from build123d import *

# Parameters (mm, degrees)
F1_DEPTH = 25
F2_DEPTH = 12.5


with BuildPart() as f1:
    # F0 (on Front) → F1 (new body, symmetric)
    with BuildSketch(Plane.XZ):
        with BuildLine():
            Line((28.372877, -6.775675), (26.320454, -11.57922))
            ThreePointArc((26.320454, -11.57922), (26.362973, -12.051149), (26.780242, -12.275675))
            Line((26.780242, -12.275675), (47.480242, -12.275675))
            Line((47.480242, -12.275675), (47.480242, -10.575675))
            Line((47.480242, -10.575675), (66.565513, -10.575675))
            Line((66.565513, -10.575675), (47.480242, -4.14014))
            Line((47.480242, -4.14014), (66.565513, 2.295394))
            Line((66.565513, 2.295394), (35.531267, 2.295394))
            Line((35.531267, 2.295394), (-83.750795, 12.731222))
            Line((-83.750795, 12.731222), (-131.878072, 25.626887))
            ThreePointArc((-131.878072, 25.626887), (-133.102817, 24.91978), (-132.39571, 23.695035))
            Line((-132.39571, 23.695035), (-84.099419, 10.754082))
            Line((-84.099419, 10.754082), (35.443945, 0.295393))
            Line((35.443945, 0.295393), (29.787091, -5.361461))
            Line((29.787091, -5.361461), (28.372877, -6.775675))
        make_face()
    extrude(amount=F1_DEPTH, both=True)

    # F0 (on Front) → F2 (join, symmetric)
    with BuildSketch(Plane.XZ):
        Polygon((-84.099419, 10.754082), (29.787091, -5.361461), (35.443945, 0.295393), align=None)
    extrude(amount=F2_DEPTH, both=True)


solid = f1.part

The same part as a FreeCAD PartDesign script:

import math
import FreeCAD as App
import Part
import Sketcher
from FreeCAD import Vector
Q = App.Units.Quantity


def add_polygon(sketch, points):
    """Adds a closed chain of lines whose ends are joined by coincident constraints."""
    first, n = sketch.GeometryCount, len(points)
    for a, b in zip(points, points[1:] + points[:1]):
        sketch.addGeometry(Part.LineSegment(App.Vector(*a, 0), App.Vector(*b, 0)), False)
    for i in range(n):
        sketch.addConstraint(Sketcher.Constraint("Coincident", first + i, 2, first + (i + 1) % n, 1))

doc = App.newDocument("Part")
body = doc.addObject("PartDesign::Body", "Body")

sketch1 = body.newObject("Sketcher::SketchObject", "Sketch")
sketch1.AttachmentSupport = (doc.getObject("XZ_Plane"), [""])
sketch1.MapMode = "FlatFace"
sketch1.addGeometry([
    Part.LineSegment(Vector(28.372877, -6.775675, 0), Vector(26.320454, -11.57922, 0)),
    Part.ArcOfCircle(Part.Circle(Vector(26.780243, -11.775675, 0), Vector(0, 0, 1), 0.5), math.radians(156.864367), math.radians(269.99989)),
    Part.LineSegment(Vector(26.780242, -12.275675, 0), Vector(47.480242, -12.275675, 0)),
    Part.LineSegment(Vector(47.480242, -12.275675, 0), Vector(47.480242, -10.575675, 0)),
    Part.LineSegment(Vector(47.480242, -10.575675, 0), Vector(66.565513, -10.575675, 0)),
    Part.LineSegment(Vector(66.565513, -10.575675, 0), Vector(47.480242, -4.14014, 0)),
    Part.LineSegment(Vector(47.480242, -4.14014, 0), Vector(66.565513, 2.295394, 0)),
    Part.LineSegment(Vector(66.565513, 2.295394, 0), Vector(35.531267, 2.295394, 0)),
    Part.LineSegment(Vector(35.531267, 2.295394, 0), Vector(-83.750795, 12.731222, 0)),
    Part.LineSegment(Vector(-83.750795, 12.731222, 0), Vector(-131.878072, 25.626887, 0)),
    Part.ArcOfCircle(Part.Circle(Vector(-132.136891, 24.660961, 0), Vector(0, 0, 1), 1), math.radians(75.000005), math.radians(255.000005)),
    Part.LineSegment(Vector(-132.39571, 23.695035, 0), Vector(-84.099419, 10.754082, 0)),
    Part.LineSegment(Vector(-84.099419, 10.754082, 0), Vector(35.443945, 0.295393, 0)),
    Part.LineSegment(Vector(35.443945, 0.295393, 0), Vector(28.372877, -6.775675, 0)),
], False)
sketch1.addConstraint([
    Sketcher.Constraint("Tangent", 0, 2, 1, 1),
    Sketcher.Constraint("Tangent", 1, 2, 2, 1),
    Sketcher.Constraint("Coincident", 2, 2, 3, 1),
    Sketcher.Constraint("Coincident", 3, 2, 4, 1),
    Sketcher.Constraint("Coincident", 4, 2, 5, 1),
    Sketcher.Constraint("Coincident", 5, 2, 6, 1),
    Sketcher.Constraint("Coincident", 6, 2, 7, 1),
    Sketcher.Constraint("Coincident", 7, 2, 8, 1),
    Sketcher.Constraint("Coincident", 8, 2, 9, 1),
    Sketcher.Constraint("Tangent", 9, 2, 10, 1),
    Sketcher.Constraint("Tangent", 10, 2, 11, 1),
    Sketcher.Constraint("Coincident", 11, 2, 12, 1),
    Sketcher.Constraint("Coincident", 12, 2, 13, 1),
    Sketcher.Constraint("Coincident", 13, 2, 0, 1),
    Sketcher.Constraint("Horizontal", 2),
    Sketcher.Constraint("Vertical", 3),
    Sketcher.Constraint("Horizontal", 4),
    Sketcher.Constraint("Horizontal", 7),
    Sketcher.Constraint("Parallel", 9, 11),
    Sketcher.Constraint("Parallel", 8, 12),
    Sketcher.Constraint("Vertical", 3, 2, 5, 2),
    Sketcher.Constraint("Vertical", 4, 2, 6, 2),
    Sketcher.Constraint("Equal", 5, 6),
    Sketcher.Constraint("Radius", 10, Q("1 mm")),
    Sketcher.Constraint("Radius", 1, Q("0.5 mm")),
    Sketcher.Constraint("Angle", 8, Q("175 deg")),
    Sketcher.Constraint("Angle", 9, Q("165 deg")),
    Sketcher.Constraint("Angle", 13, Q("-135 deg")),
    Sketcher.Constraint("Distance", 11, Q("50 mm")),
    Sketcher.Constraint("Distance", 12, Q("120 mm")),
    Sketcher.Constraint("Distance", 13, Q("10 mm")),
    Sketcher.Constraint("DistanceX", 2, 1, 2, 2, Q("20.7 mm")),
    Sketcher.Constraint("DistanceY", 3, 1, 3, 2, Q("1.7 mm")),
    Sketcher.Constraint("DistanceY", 12, 2, 7, 2, Q("2.000001 mm")),
    Sketcher.Constraint("DistanceY", 1, 3, 13, 2, Q("5 mm")),
    Sketcher.Constraint("Distance", 8, Q("119.7377 mm")),
    Sketcher.Constraint("DistanceX", 4, 1, 4, 2, Q("19.085271 mm")),
    Sketcher.Constraint("DistanceY", 0, 2, 11, 2, Q("22.333302 mm")),
    Sketcher.Constraint("DistanceX", 10, 3, -1, 1, Q("132.136891 mm")),
    Sketcher.Constraint("DistanceY", -1, 1, 10, 3, Q("24.660961 mm")),
])
pad1 = body.newObject("PartDesign::Pad", "Pad")
pad1.Profile = sketch1
pad1.Length = 50
pad1.Midplane = True

sketch2 = body.newObject("Sketcher::SketchObject", "Sketch001")
sketch2.AttachmentSupport = (doc.getObject("XZ_Plane"), [""])
sketch2.MapMode = "FlatFace"
add_polygon(sketch2, [(-84.099419, 10.754082), (29.787091, -5.361461), (35.443945, 0.295393)])
sketch2.addConstraint([
    Sketcher.Constraint("Angle", 1, Q("45 deg")),
    Sketcher.Constraint("Angle", 2, Q("175 deg")),
    Sketcher.Constraint("Distance", 1, Q("8 mm")),
    Sketcher.Constraint("Distance", 2, Q("120 mm")),
    Sketcher.Constraint("DistanceX", -1, 1, 0, 2, Q("29.787091 mm")),
    Sketcher.Constraint("DistanceY", 0, 2, -1, 1, Q("5.361461 mm")),
])
pad2 = body.newObject("PartDesign::Pad", "Pad001")
pad2.Profile = sketch2
pad2.Length = 25
pad2.Midplane = True

doc.recompute()
